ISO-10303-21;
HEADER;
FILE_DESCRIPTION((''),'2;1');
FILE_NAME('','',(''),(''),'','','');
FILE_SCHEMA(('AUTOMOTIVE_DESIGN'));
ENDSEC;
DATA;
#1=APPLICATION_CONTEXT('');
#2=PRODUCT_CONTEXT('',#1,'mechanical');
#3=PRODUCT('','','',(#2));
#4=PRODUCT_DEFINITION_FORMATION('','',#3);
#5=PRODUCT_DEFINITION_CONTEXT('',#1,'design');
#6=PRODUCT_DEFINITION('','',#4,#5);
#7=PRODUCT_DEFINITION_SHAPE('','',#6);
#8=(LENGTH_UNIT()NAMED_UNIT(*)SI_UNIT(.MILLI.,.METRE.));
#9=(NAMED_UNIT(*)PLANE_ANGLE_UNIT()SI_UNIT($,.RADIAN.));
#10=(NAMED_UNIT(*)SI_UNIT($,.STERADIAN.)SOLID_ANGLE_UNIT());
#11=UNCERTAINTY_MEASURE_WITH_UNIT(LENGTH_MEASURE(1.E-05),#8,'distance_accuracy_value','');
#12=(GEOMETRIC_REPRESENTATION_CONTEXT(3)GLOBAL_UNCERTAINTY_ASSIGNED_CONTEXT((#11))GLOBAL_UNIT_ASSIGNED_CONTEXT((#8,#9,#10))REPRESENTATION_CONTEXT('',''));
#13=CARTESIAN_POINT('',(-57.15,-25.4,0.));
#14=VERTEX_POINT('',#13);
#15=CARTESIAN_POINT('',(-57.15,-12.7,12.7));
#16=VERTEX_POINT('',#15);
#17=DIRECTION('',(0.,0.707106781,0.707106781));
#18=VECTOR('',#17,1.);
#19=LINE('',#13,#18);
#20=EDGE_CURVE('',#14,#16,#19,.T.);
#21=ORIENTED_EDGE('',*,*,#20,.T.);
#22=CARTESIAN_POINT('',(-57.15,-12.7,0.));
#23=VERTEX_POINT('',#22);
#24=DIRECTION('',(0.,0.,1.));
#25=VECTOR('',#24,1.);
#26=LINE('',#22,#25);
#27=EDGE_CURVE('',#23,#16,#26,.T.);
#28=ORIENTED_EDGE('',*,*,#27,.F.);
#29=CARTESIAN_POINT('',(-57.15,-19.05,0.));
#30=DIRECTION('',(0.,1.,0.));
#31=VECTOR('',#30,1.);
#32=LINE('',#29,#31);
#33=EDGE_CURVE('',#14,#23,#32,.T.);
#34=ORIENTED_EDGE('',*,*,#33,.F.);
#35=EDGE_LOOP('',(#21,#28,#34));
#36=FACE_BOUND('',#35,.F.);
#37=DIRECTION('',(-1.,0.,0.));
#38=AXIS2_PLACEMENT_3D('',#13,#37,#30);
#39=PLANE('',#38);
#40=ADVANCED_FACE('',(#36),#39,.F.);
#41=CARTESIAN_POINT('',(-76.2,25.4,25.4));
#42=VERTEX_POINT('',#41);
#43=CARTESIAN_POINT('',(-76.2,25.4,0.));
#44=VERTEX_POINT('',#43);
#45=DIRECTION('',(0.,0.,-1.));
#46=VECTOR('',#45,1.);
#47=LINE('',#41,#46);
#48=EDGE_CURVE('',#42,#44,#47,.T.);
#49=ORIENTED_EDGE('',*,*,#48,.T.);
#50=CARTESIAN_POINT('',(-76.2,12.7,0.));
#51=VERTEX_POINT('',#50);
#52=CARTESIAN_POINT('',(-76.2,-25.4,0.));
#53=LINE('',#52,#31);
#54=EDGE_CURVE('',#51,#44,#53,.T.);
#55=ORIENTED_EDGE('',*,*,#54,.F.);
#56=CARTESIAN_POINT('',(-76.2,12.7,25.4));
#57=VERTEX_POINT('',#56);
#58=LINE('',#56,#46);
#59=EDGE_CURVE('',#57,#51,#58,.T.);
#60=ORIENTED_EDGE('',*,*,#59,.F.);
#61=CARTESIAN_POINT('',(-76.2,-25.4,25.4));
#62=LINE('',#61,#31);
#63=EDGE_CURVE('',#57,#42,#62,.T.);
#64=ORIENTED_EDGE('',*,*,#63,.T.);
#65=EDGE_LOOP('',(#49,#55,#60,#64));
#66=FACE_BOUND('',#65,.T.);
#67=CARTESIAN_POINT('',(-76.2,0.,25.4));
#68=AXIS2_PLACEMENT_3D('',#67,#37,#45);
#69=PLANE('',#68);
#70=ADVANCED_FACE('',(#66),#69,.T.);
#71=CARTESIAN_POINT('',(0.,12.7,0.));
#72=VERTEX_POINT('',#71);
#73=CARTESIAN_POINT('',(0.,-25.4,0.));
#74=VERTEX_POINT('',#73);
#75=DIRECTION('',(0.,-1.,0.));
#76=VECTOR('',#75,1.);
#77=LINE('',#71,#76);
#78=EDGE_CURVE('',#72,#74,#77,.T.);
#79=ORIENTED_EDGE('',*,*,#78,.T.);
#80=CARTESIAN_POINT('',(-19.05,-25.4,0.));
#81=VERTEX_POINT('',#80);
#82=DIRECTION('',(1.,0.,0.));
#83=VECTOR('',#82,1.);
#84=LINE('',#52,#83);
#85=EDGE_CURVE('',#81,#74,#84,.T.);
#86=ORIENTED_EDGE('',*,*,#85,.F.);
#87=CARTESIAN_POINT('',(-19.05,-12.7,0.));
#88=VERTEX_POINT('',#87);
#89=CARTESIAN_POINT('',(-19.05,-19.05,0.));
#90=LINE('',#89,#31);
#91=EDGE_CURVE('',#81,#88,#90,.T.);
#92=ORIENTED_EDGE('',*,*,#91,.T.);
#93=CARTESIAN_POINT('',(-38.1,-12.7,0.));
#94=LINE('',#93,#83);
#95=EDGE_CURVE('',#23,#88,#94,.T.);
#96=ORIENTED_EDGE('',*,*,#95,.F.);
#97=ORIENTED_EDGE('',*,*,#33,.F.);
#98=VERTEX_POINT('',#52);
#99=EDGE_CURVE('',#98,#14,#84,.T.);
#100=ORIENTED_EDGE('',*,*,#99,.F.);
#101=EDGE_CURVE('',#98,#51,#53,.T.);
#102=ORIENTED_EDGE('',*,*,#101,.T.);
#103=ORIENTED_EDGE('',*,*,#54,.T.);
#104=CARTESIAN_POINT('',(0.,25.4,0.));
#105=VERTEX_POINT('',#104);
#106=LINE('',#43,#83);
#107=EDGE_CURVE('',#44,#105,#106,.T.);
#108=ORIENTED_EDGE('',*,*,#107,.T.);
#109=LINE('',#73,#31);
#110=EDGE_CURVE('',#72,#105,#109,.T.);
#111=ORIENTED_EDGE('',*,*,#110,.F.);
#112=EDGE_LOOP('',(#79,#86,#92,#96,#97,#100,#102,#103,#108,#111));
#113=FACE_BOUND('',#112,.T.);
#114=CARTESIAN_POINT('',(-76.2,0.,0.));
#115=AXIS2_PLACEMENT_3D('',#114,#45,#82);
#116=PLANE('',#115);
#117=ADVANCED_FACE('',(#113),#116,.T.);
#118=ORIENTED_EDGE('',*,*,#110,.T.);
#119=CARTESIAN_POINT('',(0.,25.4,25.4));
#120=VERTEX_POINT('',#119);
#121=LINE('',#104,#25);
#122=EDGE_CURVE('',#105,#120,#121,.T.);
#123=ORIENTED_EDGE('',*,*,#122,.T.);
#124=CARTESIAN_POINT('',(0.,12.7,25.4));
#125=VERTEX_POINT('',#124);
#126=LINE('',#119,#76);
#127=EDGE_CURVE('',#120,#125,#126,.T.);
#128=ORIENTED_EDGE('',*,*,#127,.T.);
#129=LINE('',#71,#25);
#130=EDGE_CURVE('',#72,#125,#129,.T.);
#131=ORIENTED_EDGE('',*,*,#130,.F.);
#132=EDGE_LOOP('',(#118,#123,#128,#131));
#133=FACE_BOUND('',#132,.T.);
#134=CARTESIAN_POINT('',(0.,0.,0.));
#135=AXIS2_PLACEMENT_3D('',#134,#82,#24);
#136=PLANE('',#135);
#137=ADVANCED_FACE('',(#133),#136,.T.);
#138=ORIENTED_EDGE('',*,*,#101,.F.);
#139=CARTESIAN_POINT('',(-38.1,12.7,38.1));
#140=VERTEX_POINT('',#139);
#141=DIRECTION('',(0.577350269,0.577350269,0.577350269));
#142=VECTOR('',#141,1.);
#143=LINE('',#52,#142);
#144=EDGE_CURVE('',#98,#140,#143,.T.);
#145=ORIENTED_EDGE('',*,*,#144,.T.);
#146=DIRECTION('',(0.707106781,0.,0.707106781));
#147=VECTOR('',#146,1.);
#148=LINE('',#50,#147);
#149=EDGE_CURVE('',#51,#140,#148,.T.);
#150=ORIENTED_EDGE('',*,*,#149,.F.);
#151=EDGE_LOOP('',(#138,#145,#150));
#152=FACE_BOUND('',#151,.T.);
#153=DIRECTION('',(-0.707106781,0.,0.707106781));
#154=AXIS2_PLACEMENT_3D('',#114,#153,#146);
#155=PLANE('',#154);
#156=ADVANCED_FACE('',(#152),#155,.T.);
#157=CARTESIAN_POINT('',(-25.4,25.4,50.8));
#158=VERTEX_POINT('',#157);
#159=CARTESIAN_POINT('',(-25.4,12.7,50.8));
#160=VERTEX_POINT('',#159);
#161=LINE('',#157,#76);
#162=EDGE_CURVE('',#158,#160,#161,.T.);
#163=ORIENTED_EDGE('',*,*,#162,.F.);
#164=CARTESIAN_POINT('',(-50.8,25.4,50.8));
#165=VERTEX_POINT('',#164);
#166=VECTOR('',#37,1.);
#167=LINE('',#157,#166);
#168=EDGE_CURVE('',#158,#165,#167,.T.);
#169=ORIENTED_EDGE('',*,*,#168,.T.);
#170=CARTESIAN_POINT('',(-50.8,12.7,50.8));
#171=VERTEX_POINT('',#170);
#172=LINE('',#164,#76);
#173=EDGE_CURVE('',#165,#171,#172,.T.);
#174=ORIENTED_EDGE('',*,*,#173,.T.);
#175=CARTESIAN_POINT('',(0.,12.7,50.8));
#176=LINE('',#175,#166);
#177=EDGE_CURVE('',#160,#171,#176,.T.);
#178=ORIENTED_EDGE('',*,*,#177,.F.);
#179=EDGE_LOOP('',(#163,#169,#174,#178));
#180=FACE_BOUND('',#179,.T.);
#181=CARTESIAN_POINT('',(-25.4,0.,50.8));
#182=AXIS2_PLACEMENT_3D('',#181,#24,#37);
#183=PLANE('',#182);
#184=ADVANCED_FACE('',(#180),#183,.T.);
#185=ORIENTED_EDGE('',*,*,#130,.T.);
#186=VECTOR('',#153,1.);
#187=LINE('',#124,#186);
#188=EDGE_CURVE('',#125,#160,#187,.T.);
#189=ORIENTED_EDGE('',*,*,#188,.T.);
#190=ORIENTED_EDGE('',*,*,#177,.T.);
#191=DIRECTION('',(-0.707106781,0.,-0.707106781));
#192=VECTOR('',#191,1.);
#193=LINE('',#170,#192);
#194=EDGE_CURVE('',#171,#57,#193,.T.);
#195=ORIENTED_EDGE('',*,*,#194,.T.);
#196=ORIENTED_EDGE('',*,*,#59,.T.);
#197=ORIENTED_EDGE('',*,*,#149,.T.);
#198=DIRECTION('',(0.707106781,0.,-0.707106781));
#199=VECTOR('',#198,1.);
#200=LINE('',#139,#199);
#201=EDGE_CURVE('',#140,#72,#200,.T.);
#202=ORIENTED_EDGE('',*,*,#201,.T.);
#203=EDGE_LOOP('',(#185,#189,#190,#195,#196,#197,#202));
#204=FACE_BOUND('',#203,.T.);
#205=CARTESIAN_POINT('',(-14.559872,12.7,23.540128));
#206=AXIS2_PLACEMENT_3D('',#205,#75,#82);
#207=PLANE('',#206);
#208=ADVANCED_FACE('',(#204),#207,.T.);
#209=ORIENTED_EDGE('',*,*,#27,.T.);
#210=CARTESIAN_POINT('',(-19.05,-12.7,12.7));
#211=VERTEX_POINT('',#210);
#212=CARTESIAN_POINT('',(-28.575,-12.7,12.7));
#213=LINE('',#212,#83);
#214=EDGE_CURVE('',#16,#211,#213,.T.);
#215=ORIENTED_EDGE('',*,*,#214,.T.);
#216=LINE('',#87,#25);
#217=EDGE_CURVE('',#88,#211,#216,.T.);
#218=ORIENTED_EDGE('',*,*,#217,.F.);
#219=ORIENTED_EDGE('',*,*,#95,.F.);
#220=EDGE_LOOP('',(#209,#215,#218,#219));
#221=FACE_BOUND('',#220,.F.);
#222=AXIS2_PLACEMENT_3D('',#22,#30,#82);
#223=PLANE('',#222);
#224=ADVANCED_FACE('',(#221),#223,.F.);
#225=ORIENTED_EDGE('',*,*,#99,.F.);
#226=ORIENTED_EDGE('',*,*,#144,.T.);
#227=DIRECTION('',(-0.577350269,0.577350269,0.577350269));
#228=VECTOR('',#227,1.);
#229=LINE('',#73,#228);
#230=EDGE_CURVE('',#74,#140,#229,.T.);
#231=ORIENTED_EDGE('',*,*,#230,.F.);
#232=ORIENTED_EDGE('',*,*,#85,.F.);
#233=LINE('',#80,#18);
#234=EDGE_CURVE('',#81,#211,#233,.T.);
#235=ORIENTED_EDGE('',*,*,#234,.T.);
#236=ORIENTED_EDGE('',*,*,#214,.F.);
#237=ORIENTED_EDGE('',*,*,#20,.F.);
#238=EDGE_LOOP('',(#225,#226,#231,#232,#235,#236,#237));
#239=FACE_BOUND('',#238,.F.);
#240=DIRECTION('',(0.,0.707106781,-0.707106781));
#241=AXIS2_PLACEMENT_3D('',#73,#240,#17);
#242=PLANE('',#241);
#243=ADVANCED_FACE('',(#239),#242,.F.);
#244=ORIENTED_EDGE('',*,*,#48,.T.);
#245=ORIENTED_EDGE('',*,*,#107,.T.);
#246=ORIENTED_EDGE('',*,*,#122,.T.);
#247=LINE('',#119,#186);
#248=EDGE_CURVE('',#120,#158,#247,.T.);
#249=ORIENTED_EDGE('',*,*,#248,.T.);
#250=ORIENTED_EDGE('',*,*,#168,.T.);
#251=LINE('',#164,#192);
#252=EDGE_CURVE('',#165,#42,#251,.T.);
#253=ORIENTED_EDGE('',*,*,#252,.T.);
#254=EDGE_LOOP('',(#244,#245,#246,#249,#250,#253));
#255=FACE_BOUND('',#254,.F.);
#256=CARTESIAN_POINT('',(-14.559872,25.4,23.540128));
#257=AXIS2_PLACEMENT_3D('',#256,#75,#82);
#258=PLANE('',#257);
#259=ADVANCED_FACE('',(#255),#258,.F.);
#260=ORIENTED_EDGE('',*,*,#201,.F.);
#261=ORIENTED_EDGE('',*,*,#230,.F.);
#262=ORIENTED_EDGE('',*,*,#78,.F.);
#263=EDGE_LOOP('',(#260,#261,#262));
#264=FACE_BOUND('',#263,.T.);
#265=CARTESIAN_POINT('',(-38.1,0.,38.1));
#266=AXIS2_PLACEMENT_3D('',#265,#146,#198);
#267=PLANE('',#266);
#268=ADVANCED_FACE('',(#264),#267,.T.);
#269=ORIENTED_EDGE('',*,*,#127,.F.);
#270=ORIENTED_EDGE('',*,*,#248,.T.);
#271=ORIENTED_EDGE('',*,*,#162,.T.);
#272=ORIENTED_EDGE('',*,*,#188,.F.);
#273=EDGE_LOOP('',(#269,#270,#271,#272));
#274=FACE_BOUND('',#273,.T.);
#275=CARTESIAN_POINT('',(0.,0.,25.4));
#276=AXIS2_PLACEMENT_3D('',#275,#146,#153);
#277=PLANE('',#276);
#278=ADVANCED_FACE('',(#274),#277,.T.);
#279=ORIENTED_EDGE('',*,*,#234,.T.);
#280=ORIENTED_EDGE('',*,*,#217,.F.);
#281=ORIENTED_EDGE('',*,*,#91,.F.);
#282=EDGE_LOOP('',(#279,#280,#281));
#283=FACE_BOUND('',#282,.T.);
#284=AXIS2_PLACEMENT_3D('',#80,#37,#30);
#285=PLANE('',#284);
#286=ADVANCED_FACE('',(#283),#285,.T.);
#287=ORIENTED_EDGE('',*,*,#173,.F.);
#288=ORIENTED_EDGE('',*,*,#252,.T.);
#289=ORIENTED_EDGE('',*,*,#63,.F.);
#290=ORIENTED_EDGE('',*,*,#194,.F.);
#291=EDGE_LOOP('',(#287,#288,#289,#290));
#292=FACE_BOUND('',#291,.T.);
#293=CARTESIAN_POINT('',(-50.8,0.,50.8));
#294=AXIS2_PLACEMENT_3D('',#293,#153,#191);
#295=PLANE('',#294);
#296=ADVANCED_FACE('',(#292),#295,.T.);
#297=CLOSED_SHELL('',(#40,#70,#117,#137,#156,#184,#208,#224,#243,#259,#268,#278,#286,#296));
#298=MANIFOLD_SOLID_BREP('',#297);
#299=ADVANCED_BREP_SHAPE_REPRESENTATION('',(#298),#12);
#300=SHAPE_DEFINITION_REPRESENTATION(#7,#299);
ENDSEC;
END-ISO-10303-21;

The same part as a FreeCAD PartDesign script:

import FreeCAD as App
import Part
import Sketcher
Q = App.Units.Quantity

doc = App.newDocument("Part")
body = doc.addObject("PartDesign::Body", "Body")

# Sketch on XZ plane
sketch1 = doc.addObject("Sketcher::SketchObject", "Sketch")
body.addObject(sketch1)
sketch1.AttachmentSupport = (doc.XZ_Plane, [""])
sketch1.MapMode = "FlatFace"
sketch1.addGeometry(Part.LineSegment(App.Vector(0, 0, 0), App.Vector(0, 25, 0)), False)
sketch1.addGeometry(Part.LineSegment(App.Vector(0, 25, 0), App.Vector(-25, 51, 0)), False)
sketch1.addGeometry(Part.LineSegment(App.Vector(-25, 51, 0), App.Vector(-51, 51, 0)), False)
sketch1.addGeometry(Part.LineSegment(App.Vector(-51, 51, 0), App.Vector(-76, 25, 0)), False)
sketch1.addGeometry(Part.LineSegment(App.Vector(-76, 25, 0), App.Vector(-76, 0, 0)), False)
sketch1.addGeometry(Part.LineSegment(App.Vector(-76, 0, 0), App.Vector(0, 0, 0)), False)
sketch1.addConstraint(Sketcher.Constraint("Coincident", 0, 2, 1, 1))
sketch1.addConstraint(Sketcher.Constraint("Coincident", 1, 2, 2, 1))
sketch1.addConstraint(Sketcher.Constraint("Coincident", 2, 2, 3, 1))
sketch1.addConstraint(Sketcher.Constraint("Coincident", 3, 2, 4, 1))
sketch1.addConstraint(Sketcher.Constraint("Coincident", 4, 2, 5, 1))
sketch1.addConstraint(Sketcher.Constraint("Coincident", 5, 2, 0, 1))
sketch1.addConstraint(Sketcher.Constraint("Vertical", 0))
sketch1.addConstraint(Sketcher.Constraint("Horizontal", 2))
sketch1.addConstraint(Sketcher.Constraint("Vertical", 4))
sketch1.addConstraint(Sketcher.Constraint("Horizontal", 5))
sketch1.addConstraint(Sketcher.Constraint("Coincident", 5, 2, -1, 1))
sketch1.addConstraint(Sketcher.Constraint("Perpendicular", 1, 3))
sketch1.addConstraint(Sketcher.Constraint("Horizontal", 0, 2, 3, 2))
sketch1.addConstraint(Sketcher.Constraint("Equal", 2, 0))
sketch1.addConstraint(Sketcher.Constraint("Equal", 1, 3))
sketch1.addConstraint(Sketcher.Constraint("DistanceX", 2, 2, 2, 1, Q("1 in")))
sketch1.addConstraint(Sketcher.Constraint("DistanceX", 5, 1, 5, 2, Q("3 in")))
pad1 = doc.addObject("PartDesign::Pad", "Pad")
body.addObject(pad1)
pad1.Profile = sketch1
pad1.Length = Q("2 in")
pad1.Midplane = True

# Sketch on YZ plane
sketch2 = doc.addObject("Sketcher::SketchObject", "Sketch001")
body.addObject(sketch2)
sketch2.AttachmentSupport = (doc.YZ_Plane, [""])
sketch2.MapMode = "FlatFace"
sketch2.addGeometry(Part.LineSegment(App.Vector(13, 38, 0), App.Vector(13, 51, 0)), False)
sketch2.addGeometry(Part.LineSegment(App.Vector(13, 51, 0), App.Vector(-25, 51, 0)), False)
sketch2.addGeometry(Part.LineSegment(App.Vector(-25, 51, 0), App.Vector(-25, 0, 0)), False)
sketch2.addGeometry(Part.LineSegment(App.Vector(-25, 0, 0), App.Vector(13, 38, 0)), False)
sketch2.addConstraint(Sketcher.Constraint("Coincident", 0, 2, 1, 1))
sketch2.addConstraint(Sketcher.Constraint("Coincident", 1, 2, 2, 1))
sketch2.addConstraint(Sketcher.Constraint("Coincident", 2, 2, 3, 1))
sketch2.addConstraint(Sketcher.Constraint("Coincident", 3, 2, 0, 1))
sketch2.addConstraint(Sketcher.Constraint("Vertical", 0))
sketch2.addConstraint(Sketcher.Constraint("Horizontal", 1))
sketch2.addConstraint(Sketcher.Constraint("Vertical", 2))
sketch2.addConstraint(Sketcher.Constraint("PointOnObject", 2, 2, -1))
sketch2.addConstraint(Sketcher.Constraint("DistanceY", 2, 2, 2, 1, Q("2 in")))
sketch2.addConstraint(Sketcher.Constraint("DistanceX", 1, 2, 1, 1, Q("1.5 in")))
sketch2.addConstraint(Sketcher.Constraint("DistanceY", 0, 1, 0, 2, Q("0.5 in")))
sketch2.addConstraint(Sketcher.Constraint("DistanceX", 1, 2, -1, 1, Q("1 in")))
pocket1 = doc.addObject("PartDesign::Pocket", "Pocket")
body.addObject(pocket1)
pocket1.Profile = sketch2
pocket1.Type = "ThroughAll"

# Sketch on XY plane
sketch3 = doc.addObject("Sketcher::SketchObject", "Sketch002")
body.addObject(sketch3)
sketch3.AttachmentSupport = (doc.XY_Plane, [""])
sketch3.MapMode = "FlatFace"
sketch3.addGeometry(Part.LineSegment(App.Vector(-57, -13, 0), App.Vector(-57, -25, 0)), False)
sketch3.addGeometry(Part.LineSegment(App.Vector(-57, -25, 0), App.Vector(-19, -25, 0)), False)
sketch3.addGeometry(Part.LineSegment(App.Vector(-19, -25, 0), App.Vector(-19, -13, 0)), False)
sketch3.addGeometry(Part.LineSegment(App.Vector(-19, -13, 0), App.Vector(-57, -13, 0)), False)
sketch3.addConstraint(Sketcher.Constraint("Coincident", 0, 2, 1, 1))
sketch3.addConstraint(Sketcher.Constraint("Coincident", 1, 2, 2, 1))
sketch3.addConstraint(Sketcher.Constraint("Coincident", 2, 2, 3, 1))
sketch3.addConstraint(Sketcher.Constraint("Coincident", 3, 2, 0, 1))
sketch3.addConstraint(Sketcher.Constraint("Vertical", 0))
sketch3.addConstraint(Sketcher.Constraint("Horizontal", 1))
sketch3.addConstraint(Sketcher.Constraint("Vertical", 2))
sketch3.addConstraint(Sketcher.Constraint("Horizontal", 3))
sketch3.addConstraint(Sketcher.Constraint("DistanceX", 1, 1, 1, 2, Q("1.5 in")))
sketch3.addConstraint(Sketcher.Constraint("DistanceY", 0, 2, 0, 1, Q("0.5 in")))
sketch3.addConstraint(Sketcher.Constraint("DistanceY", 0, 2, -1, 1, Q("1 in")))
sketch3.addConstraint(Sketcher.Constraint("DistanceX", 0, 2, -1, 1, Q("2.25 in")))
pocket2 = doc.addObject("PartDesign::Pocket", "Pocket001")
body.addObject(pocket2)
pocket2.Profile = sketch3
pocket2.Type = "ThroughAll"
pocket2.Reversed = True

# Sketch on XZ plane
sketch4 = doc.addObject("Sketcher::SketchObject", "Sketch003")
body.addObject(sketch4)
sketch4.AttachmentSupport = (doc.XZ_Plane, [""])
sketch4.MapMode = "FlatFace"
sketch4.addGeometry(Part.LineSegment(App.Vector(-76, 0, 0), App.Vector(-38, 38, 0)), False)
sketch4.addGeometry(Part.LineSegment(App.Vector(-38, 38, 0), App.Vector(-64, 38, 0)), False)
sketch4.addGeometry(Part.LineSegment(App.Vector(-64, 38, 0), App.Vector(-76, 25, 0)), False)
sketch4.addGeometry(Part.LineSegment(App.Vector(-76, 25, 0), App.Vector(-76, 0, 0)), False)
sketch4.addGeometry(Part.LineSegment(App.Vector(-38, 38, 0), App.Vector(0, 0, 0)), False)
sketch4.addGeometry(Part.LineSegment(App.Vector(0, 0, 0), App.Vector(0, 25, 0)), False)
sketch4.addGeometry(Part.LineSegment(App.Vector(0, 25, 0), App.Vector(-13, 38, 0)), False)
sketch4.addGeometry(Part.LineSegment(App.Vector(-13, 38, 0), App.Vector(-38, 38, 0)), False)
sketch4.addConstraint(Sketcher.Constraint("Coincident", 0, 2, 1, 1))
sketch4.addConstraint(Sketcher.Constraint("Coincident", 1, 2, 2, 1))
sketch4.addConstraint(Sketcher.Constraint("Coincident", 2, 2, 3, 1))
sketch4.addConstraint(Sketcher.Constraint("Coincident", 3, 2, 0, 1))
sketch4.addConstraint(Sketcher.Constraint("Coincident", 4, 2, 5, 1))
sketch4.addConstraint(Sketcher.Constraint("Coincident", 5, 2, 6, 1))
sketch4.addConstraint(Sketcher.Constraint("Coincident", 6, 2, 7, 1))
sketch4.addConstraint(Sketcher.Constraint("Coincident", 7, 2, 4, 1))
sketch4.addConstraint(Sketcher.Constraint("Horizontal", 1))
sketch4.addConstraint(Sketcher.Constraint("Vertical", 3))
sketch4.addConstraint(Sketcher.Constraint("Vertical", 5))
sketch4.addConstraint(Sketcher.Constraint("Horizontal", 7))
sketch4.addConstraint(Sketcher.Constraint("Coincident", 4, 2, -1, 1))
sketch4.addConstraint(Sketcher.Constraint("Coincident", 7, 2, 0, 2))
sketch4.addConstraint(Sketcher.Constraint("PointOnObject", 3, 2, -1))
sketch4.addConstraint(Sketcher.Constraint("Parallel", 0, 2))
sketch4.addConstraint(Sketcher.Constraint("Perpendicular", 2, 4))
sketch4.addConstraint(Sketcher.Constraint("Parallel", 4, 6))
sketch4.addConstraint(Sketcher.Constraint("Horizontal", 2, 2, 5, 2))
sketch4.addConstraint(Sketcher.Constraint("Equal", 1, 7))
sketch4.addConstraint(Sketcher.Constraint("DistanceX", 1, 2, 1, 1, Q("1 in")))
sketch4.addConstraint(Sketcher.Constraint("DistanceX", 2, 2, -1, 1, Q("3 in")))
pocket3 = doc.addObject("PartDesign::Pocket", "Pocket002")
body.addObject(pocket3)
pocket3.Profile = sketch4
pocket3.Length = Q("1 in")
pocket3.Midplane = True

# Sketch on XZ plane
sketch5 = doc.addObject("Sketcher::SketchObject", "Sketch004")
body.addObject(sketch5)
sketch5.AttachmentSupport = (doc.XZ_Plane, [""])
sketch5.MapMode = "FlatFace"
sketch5.addGeometry(Part.LineSegment(App.Vector(-76, 0, 0), App.Vector(-38, 38, 0)), False)
sketch5.addGeometry(Part.LineSegment(App.Vector(-38, 38, 0), App.Vector(-64, 38, 0)), False)
sketch5.addGeometry(Part.LineSegment(App.Vector(-64, 38, 0), App.Vector(-76, 25, 0)), False)
sketch5.addGeometry(Part.LineSegment(App.Vector(-76, 25, 0), App.Vector(-76, 0, 0)), False)
sketch5.addGeometry(Part.LineSegment(App.Vector(-38, 38, 0), App.Vector(0, 0, 0)), False)
sketch5.addGeometry(Part.LineSegment(App.Vector(0, 0, 0), App.Vector(0, 25, 0)), False)
sketch5.addGeometry(Part.LineSegment(App.Vector(0, 25, 0), App.Vector(-13, 38, 0)), False)
sketch5.addGeometry(Part.LineSegment(App.Vector(-13, 38, 0), App.Vector(-38, 38, 0)), False)
sketch5.addConstraint(Sketcher.Constraint("Coincident", 0, 2, 1, 1))
sketch5.addConstraint(Sketcher.Constraint("Coincident", 1, 2, 2, 1))
sketch5.addConstraint(Sketcher.Constraint("Coincident", 2, 2, 3, 1))
sketch5.addConstraint(Sketcher.Constraint("Coincident", 3, 2, 0, 1))
sketch5.addConstraint(Sketcher.Constraint("Coincident", 4, 2, 5, 1))
sketch5.addConstraint(Sketcher.Constraint("Coincident", 5, 2, 6, 1))
sketch5.addConstraint(Sketcher.Constraint("Coincident", 6, 2, 7, 1))
sketch5.addConstraint(Sketcher.Constraint("Coincident", 7, 2, 4, 1))
sketch5.addConstraint(Sketcher.Constraint("Horizontal", 1))
sketch5.addConstraint(Sketcher.Constraint("Vertical", 3))
sketch5.addConstraint(Sketcher.Constraint("Vertical", 5))
sketch5.addConstraint(Sketcher.Constraint("Horizontal", 7))
sketch5.addConstraint(Sketcher.Constraint("Coincident", 4, 2, -1, 1))
sketch5.addConstraint(Sketcher.Constraint("Coincident", 7, 2, 0, 2))
sketch5.addConstraint(Sketcher.Constraint("PointOnObject", 3, 2, -1))
sketch5.addConstraint(Sketcher.Constraint("Parallel", 0, 2))
sketch5.addConstraint(Sketcher.Constraint("Perpendicular", 2, 4))
sketch5.addConstraint(Sketcher.Constraint("Parallel", 4, 6))
sketch5.addConstraint(Sketcher.Constraint("Horizontal", 2, 2, 5, 2))
sketch5.addConstraint(Sketcher.Constraint("Equal", 1, 7))
sketch5.addConstraint(Sketcher.Constraint("DistanceX", 1, 2, 1, 1, Q("1 in")))
sketch5.addConstraint(Sketcher.Constraint("DistanceX", 2, 2, -1, 1, Q("3 in")))
pocket4 = doc.addObject("PartDesign::Pocket", "Pocket003")
body.addObject(pocket4)
pocket4.Profile = sketch5
pocket4.Length = Q("1 in")
pocket4.Reversed = True

doc.recompute()
